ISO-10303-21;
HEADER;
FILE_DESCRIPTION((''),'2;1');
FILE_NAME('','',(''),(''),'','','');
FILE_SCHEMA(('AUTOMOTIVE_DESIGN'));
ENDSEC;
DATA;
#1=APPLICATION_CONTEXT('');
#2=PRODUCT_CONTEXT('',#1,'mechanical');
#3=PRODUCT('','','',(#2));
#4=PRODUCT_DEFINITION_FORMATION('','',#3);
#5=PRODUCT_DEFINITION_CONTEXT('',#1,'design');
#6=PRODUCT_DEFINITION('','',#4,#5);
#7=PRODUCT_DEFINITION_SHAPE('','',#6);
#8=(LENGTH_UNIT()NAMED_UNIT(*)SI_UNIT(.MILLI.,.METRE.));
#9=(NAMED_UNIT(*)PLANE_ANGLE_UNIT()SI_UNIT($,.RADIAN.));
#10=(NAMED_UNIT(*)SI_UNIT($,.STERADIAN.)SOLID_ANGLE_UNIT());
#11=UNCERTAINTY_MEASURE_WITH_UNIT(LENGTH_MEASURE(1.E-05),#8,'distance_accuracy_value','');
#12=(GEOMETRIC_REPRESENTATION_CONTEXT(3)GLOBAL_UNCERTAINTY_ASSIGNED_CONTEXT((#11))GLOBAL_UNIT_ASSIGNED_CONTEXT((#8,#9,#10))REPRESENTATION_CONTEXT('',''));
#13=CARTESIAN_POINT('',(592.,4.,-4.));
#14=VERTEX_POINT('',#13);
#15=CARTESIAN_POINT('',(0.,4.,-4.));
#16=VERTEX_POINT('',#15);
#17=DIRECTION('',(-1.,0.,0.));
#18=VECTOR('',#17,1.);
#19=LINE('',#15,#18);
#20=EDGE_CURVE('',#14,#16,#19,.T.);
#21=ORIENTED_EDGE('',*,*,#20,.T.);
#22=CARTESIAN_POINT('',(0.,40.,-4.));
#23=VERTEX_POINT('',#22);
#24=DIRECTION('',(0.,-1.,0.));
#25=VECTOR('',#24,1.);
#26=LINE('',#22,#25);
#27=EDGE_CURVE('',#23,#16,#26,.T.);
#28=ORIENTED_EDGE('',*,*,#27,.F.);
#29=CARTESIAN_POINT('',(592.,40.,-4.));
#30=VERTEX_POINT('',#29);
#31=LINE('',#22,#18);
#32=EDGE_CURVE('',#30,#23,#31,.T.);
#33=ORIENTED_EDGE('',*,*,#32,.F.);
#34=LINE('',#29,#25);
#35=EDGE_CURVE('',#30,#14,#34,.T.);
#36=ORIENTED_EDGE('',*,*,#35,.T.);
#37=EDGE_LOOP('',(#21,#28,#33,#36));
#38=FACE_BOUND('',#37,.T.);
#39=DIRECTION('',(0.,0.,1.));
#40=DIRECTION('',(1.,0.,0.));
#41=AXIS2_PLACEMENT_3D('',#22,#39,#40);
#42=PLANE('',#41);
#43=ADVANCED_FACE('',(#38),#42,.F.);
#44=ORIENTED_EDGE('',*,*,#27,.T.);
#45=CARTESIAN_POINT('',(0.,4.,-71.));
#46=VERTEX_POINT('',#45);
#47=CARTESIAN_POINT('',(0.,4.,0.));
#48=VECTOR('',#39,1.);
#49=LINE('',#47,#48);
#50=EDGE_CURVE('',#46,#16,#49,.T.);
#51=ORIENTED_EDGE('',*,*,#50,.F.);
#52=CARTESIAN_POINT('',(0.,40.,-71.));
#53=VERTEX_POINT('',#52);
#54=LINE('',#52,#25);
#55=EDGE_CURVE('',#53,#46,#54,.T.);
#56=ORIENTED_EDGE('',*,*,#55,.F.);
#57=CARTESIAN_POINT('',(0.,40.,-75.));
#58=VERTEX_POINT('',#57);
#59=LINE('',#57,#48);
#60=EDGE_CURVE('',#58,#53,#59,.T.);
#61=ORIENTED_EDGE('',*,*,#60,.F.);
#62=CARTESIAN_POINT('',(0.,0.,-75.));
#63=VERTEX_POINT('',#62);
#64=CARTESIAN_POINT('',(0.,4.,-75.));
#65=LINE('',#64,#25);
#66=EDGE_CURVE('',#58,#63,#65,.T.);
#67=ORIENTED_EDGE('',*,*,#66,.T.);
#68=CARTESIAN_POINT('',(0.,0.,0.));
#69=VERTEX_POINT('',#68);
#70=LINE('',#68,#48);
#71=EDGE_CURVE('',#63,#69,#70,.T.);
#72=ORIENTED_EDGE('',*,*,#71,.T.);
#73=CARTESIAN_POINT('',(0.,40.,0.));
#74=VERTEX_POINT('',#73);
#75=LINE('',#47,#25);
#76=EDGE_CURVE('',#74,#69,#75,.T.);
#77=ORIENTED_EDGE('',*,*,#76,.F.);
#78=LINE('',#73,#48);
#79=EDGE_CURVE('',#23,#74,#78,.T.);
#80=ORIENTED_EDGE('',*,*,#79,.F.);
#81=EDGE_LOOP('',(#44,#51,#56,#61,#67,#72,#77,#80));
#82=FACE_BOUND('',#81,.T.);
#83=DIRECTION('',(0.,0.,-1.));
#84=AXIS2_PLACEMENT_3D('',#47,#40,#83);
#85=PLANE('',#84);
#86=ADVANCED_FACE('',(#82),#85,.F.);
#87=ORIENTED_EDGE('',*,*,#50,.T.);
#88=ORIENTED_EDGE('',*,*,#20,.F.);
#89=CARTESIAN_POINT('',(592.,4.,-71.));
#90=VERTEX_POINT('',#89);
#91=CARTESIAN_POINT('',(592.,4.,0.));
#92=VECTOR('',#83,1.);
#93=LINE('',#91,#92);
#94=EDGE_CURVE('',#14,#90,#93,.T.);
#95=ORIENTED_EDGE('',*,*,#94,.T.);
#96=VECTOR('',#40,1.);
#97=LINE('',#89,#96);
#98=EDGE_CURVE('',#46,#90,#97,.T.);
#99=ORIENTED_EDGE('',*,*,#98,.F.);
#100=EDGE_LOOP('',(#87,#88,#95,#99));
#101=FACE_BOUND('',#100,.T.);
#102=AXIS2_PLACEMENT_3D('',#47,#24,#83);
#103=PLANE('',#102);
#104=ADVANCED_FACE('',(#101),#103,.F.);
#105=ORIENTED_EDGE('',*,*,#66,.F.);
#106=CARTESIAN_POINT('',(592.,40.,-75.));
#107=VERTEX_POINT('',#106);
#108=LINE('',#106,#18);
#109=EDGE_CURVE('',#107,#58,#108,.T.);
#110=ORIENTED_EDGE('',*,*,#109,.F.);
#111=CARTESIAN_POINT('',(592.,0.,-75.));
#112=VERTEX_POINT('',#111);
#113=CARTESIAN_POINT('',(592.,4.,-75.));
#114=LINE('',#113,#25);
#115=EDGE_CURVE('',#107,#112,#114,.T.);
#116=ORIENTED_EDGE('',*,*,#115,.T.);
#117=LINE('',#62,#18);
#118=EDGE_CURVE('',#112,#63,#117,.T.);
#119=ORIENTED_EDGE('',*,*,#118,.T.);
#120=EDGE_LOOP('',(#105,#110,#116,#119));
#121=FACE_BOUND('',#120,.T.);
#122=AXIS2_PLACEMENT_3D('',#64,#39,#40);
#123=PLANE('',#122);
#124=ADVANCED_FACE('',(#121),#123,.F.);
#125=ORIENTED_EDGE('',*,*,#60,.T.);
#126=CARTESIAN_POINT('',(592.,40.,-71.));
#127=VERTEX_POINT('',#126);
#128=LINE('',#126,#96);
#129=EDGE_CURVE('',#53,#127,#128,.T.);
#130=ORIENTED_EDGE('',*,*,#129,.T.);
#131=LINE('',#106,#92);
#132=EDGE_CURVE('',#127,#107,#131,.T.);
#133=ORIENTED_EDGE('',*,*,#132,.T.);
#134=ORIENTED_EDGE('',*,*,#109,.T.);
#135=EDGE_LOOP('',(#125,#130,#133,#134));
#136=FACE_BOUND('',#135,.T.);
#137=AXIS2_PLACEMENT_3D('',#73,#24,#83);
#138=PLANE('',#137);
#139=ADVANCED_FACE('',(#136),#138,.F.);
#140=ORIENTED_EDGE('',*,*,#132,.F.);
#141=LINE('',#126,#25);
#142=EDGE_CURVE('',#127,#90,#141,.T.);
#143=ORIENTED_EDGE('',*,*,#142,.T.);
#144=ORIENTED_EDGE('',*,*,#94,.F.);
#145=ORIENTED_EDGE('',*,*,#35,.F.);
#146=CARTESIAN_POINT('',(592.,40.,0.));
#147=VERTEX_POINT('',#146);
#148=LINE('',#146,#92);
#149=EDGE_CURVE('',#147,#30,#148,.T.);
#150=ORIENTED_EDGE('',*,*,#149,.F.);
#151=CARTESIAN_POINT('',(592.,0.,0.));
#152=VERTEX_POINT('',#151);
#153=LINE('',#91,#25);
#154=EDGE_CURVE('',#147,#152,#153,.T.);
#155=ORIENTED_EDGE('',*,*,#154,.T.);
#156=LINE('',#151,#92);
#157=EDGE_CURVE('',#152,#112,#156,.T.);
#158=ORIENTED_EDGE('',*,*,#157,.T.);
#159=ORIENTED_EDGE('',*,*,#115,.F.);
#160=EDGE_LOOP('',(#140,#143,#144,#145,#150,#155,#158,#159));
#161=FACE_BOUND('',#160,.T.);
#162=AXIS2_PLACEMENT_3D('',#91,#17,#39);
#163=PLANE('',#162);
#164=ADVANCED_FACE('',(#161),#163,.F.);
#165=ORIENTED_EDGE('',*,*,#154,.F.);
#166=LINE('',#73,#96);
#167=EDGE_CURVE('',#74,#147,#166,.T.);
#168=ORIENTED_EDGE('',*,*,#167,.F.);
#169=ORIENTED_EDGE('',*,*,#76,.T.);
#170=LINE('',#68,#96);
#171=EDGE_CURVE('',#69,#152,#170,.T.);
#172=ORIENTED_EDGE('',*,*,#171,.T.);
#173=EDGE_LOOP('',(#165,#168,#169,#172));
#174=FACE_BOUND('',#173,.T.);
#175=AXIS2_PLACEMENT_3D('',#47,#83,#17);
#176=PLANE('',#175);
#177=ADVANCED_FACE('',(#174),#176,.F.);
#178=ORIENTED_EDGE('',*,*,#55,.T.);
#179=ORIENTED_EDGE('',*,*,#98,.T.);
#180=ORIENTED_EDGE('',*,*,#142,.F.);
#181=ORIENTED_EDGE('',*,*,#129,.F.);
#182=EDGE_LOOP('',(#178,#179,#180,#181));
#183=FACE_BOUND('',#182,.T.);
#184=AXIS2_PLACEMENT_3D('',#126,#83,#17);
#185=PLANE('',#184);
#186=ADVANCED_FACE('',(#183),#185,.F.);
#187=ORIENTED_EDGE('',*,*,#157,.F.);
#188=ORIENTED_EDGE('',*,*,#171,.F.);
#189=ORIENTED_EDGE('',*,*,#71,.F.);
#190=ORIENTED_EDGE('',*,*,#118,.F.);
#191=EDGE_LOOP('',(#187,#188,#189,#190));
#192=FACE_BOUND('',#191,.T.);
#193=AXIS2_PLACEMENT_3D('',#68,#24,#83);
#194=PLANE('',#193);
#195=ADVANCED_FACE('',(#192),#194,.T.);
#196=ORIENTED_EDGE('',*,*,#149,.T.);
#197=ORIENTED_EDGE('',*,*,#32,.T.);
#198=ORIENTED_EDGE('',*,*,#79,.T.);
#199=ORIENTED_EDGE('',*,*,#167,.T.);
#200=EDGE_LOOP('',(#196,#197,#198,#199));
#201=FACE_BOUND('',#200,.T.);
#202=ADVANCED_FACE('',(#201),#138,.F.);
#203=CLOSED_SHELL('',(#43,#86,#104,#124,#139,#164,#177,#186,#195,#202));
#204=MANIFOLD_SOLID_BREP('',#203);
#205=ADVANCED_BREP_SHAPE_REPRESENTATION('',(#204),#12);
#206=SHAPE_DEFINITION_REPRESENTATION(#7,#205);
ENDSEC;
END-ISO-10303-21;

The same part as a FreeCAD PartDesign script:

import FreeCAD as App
import Part
import Sketcher

V = App.Vector
Q = App.Units.Quantity


def add_polygon(sketch, points):
    """Adds a closed chain of lines whose ends are joined by coincident constraints."""
    first, n = sketch.GeometryCount, len(points)
    for a, b in zip(points, points[1:] + points[:1]):
        sketch.addGeometry(Part.LineSegment(App.Vector(*a, 0), App.Vector(*b, 0)), False)
    for i in range(n):
        sketch.addConstraint(Sketcher.Constraint("Coincident", first + i, 2, first + (i + 1) % n, 1))

doc = App.newDocument("Part")
body = doc.addObject("PartDesign::Body", "Body")

sketch1 = body.newObject("Sketcher::SketchObject", "Sketch")
sketch1.AttachmentSupport = (doc.getObject("XZ_Plane"), [""])
sketch1.MapMode = "FlatFace"
add_polygon(sketch1, [(0, -75), (0, 0), (592, 0), (592, -75)])
sketch1.addConstraint([
    Sketcher.Constraint("Vertical", 0),
    Sketcher.Constraint("Horizontal", 1),
    Sketcher.Constraint("Vertical", 2),
    Sketcher.Constraint("Horizontal", 3),
    Sketcher.Constraint("Coincident", 0, 2, -1, 1),
    Sketcher.Constraint("DistanceX", 1, 1, 1, 2, Q("592 mm")),
    Sketcher.Constraint("DistanceY", 0, 1, 0, 2, Q("75 mm")),
])
pad1 = body.newObject("PartDesign::Pad", "Pad")
pad1.Profile = sketch1
pad1.Length = 4
pad1.Reversed = True

sketch2 = body.newObject("Sketcher::SketchObject", "Sketch001")
sketch2.AttachmentSupport = (doc.getObject("XZ_Plane"), [""])
sketch2.MapMode = "FlatFace"
sketch2.AttachmentOffset = App.Placement(V(0, 0, -4), App.Rotation())
add_polygon(sketch2, [(0, -4), (0, 0), (592, 0), (592, -4)])
add_polygon(sketch2, [(0, -75), (0, -71), (592, -71), (592, -75)])
sketch2.addConstraint([
    Sketcher.Constraint("Vertical", 0),
    Sketcher.Constraint("Horizontal", 1),
    Sketcher.Constraint("Vertical", 2),
    Sketcher.Constraint("Horizontal", 3),
    Sketcher.Constraint("Vertical", 4),
    Sketcher.Constraint("Horizontal", 5),
    Sketcher.Constraint("Vertical", 6),
    Sketcher.Constraint("Horizontal", 7),
    Sketcher.Constraint("Coincident", 0, 2, -1, 1),
    Sketcher.Constraint("PointOnObject", 4, 2, -2),
    Sketcher.Constraint("Vertical", 2, 2, 5, 2),
    Sketcher.Constraint("Equal", 2, 4),
    Sketcher.Constraint("DistanceX", 1, 1, 1, 2, Q("592 mm")),
    Sketcher.Constraint("DistanceY", 0, 1, 0, 2, Q("4 mm")),
    Sketcher.Constraint("DistanceY", 4, 2, -1, 1, Q("71 mm")),
])
pad2 = body.newObject("PartDesign::Pad", "Pad001")
pad2.Profile = sketch2
pad2.Length = 36
pad2.Reversed = True

doc.recompute()
